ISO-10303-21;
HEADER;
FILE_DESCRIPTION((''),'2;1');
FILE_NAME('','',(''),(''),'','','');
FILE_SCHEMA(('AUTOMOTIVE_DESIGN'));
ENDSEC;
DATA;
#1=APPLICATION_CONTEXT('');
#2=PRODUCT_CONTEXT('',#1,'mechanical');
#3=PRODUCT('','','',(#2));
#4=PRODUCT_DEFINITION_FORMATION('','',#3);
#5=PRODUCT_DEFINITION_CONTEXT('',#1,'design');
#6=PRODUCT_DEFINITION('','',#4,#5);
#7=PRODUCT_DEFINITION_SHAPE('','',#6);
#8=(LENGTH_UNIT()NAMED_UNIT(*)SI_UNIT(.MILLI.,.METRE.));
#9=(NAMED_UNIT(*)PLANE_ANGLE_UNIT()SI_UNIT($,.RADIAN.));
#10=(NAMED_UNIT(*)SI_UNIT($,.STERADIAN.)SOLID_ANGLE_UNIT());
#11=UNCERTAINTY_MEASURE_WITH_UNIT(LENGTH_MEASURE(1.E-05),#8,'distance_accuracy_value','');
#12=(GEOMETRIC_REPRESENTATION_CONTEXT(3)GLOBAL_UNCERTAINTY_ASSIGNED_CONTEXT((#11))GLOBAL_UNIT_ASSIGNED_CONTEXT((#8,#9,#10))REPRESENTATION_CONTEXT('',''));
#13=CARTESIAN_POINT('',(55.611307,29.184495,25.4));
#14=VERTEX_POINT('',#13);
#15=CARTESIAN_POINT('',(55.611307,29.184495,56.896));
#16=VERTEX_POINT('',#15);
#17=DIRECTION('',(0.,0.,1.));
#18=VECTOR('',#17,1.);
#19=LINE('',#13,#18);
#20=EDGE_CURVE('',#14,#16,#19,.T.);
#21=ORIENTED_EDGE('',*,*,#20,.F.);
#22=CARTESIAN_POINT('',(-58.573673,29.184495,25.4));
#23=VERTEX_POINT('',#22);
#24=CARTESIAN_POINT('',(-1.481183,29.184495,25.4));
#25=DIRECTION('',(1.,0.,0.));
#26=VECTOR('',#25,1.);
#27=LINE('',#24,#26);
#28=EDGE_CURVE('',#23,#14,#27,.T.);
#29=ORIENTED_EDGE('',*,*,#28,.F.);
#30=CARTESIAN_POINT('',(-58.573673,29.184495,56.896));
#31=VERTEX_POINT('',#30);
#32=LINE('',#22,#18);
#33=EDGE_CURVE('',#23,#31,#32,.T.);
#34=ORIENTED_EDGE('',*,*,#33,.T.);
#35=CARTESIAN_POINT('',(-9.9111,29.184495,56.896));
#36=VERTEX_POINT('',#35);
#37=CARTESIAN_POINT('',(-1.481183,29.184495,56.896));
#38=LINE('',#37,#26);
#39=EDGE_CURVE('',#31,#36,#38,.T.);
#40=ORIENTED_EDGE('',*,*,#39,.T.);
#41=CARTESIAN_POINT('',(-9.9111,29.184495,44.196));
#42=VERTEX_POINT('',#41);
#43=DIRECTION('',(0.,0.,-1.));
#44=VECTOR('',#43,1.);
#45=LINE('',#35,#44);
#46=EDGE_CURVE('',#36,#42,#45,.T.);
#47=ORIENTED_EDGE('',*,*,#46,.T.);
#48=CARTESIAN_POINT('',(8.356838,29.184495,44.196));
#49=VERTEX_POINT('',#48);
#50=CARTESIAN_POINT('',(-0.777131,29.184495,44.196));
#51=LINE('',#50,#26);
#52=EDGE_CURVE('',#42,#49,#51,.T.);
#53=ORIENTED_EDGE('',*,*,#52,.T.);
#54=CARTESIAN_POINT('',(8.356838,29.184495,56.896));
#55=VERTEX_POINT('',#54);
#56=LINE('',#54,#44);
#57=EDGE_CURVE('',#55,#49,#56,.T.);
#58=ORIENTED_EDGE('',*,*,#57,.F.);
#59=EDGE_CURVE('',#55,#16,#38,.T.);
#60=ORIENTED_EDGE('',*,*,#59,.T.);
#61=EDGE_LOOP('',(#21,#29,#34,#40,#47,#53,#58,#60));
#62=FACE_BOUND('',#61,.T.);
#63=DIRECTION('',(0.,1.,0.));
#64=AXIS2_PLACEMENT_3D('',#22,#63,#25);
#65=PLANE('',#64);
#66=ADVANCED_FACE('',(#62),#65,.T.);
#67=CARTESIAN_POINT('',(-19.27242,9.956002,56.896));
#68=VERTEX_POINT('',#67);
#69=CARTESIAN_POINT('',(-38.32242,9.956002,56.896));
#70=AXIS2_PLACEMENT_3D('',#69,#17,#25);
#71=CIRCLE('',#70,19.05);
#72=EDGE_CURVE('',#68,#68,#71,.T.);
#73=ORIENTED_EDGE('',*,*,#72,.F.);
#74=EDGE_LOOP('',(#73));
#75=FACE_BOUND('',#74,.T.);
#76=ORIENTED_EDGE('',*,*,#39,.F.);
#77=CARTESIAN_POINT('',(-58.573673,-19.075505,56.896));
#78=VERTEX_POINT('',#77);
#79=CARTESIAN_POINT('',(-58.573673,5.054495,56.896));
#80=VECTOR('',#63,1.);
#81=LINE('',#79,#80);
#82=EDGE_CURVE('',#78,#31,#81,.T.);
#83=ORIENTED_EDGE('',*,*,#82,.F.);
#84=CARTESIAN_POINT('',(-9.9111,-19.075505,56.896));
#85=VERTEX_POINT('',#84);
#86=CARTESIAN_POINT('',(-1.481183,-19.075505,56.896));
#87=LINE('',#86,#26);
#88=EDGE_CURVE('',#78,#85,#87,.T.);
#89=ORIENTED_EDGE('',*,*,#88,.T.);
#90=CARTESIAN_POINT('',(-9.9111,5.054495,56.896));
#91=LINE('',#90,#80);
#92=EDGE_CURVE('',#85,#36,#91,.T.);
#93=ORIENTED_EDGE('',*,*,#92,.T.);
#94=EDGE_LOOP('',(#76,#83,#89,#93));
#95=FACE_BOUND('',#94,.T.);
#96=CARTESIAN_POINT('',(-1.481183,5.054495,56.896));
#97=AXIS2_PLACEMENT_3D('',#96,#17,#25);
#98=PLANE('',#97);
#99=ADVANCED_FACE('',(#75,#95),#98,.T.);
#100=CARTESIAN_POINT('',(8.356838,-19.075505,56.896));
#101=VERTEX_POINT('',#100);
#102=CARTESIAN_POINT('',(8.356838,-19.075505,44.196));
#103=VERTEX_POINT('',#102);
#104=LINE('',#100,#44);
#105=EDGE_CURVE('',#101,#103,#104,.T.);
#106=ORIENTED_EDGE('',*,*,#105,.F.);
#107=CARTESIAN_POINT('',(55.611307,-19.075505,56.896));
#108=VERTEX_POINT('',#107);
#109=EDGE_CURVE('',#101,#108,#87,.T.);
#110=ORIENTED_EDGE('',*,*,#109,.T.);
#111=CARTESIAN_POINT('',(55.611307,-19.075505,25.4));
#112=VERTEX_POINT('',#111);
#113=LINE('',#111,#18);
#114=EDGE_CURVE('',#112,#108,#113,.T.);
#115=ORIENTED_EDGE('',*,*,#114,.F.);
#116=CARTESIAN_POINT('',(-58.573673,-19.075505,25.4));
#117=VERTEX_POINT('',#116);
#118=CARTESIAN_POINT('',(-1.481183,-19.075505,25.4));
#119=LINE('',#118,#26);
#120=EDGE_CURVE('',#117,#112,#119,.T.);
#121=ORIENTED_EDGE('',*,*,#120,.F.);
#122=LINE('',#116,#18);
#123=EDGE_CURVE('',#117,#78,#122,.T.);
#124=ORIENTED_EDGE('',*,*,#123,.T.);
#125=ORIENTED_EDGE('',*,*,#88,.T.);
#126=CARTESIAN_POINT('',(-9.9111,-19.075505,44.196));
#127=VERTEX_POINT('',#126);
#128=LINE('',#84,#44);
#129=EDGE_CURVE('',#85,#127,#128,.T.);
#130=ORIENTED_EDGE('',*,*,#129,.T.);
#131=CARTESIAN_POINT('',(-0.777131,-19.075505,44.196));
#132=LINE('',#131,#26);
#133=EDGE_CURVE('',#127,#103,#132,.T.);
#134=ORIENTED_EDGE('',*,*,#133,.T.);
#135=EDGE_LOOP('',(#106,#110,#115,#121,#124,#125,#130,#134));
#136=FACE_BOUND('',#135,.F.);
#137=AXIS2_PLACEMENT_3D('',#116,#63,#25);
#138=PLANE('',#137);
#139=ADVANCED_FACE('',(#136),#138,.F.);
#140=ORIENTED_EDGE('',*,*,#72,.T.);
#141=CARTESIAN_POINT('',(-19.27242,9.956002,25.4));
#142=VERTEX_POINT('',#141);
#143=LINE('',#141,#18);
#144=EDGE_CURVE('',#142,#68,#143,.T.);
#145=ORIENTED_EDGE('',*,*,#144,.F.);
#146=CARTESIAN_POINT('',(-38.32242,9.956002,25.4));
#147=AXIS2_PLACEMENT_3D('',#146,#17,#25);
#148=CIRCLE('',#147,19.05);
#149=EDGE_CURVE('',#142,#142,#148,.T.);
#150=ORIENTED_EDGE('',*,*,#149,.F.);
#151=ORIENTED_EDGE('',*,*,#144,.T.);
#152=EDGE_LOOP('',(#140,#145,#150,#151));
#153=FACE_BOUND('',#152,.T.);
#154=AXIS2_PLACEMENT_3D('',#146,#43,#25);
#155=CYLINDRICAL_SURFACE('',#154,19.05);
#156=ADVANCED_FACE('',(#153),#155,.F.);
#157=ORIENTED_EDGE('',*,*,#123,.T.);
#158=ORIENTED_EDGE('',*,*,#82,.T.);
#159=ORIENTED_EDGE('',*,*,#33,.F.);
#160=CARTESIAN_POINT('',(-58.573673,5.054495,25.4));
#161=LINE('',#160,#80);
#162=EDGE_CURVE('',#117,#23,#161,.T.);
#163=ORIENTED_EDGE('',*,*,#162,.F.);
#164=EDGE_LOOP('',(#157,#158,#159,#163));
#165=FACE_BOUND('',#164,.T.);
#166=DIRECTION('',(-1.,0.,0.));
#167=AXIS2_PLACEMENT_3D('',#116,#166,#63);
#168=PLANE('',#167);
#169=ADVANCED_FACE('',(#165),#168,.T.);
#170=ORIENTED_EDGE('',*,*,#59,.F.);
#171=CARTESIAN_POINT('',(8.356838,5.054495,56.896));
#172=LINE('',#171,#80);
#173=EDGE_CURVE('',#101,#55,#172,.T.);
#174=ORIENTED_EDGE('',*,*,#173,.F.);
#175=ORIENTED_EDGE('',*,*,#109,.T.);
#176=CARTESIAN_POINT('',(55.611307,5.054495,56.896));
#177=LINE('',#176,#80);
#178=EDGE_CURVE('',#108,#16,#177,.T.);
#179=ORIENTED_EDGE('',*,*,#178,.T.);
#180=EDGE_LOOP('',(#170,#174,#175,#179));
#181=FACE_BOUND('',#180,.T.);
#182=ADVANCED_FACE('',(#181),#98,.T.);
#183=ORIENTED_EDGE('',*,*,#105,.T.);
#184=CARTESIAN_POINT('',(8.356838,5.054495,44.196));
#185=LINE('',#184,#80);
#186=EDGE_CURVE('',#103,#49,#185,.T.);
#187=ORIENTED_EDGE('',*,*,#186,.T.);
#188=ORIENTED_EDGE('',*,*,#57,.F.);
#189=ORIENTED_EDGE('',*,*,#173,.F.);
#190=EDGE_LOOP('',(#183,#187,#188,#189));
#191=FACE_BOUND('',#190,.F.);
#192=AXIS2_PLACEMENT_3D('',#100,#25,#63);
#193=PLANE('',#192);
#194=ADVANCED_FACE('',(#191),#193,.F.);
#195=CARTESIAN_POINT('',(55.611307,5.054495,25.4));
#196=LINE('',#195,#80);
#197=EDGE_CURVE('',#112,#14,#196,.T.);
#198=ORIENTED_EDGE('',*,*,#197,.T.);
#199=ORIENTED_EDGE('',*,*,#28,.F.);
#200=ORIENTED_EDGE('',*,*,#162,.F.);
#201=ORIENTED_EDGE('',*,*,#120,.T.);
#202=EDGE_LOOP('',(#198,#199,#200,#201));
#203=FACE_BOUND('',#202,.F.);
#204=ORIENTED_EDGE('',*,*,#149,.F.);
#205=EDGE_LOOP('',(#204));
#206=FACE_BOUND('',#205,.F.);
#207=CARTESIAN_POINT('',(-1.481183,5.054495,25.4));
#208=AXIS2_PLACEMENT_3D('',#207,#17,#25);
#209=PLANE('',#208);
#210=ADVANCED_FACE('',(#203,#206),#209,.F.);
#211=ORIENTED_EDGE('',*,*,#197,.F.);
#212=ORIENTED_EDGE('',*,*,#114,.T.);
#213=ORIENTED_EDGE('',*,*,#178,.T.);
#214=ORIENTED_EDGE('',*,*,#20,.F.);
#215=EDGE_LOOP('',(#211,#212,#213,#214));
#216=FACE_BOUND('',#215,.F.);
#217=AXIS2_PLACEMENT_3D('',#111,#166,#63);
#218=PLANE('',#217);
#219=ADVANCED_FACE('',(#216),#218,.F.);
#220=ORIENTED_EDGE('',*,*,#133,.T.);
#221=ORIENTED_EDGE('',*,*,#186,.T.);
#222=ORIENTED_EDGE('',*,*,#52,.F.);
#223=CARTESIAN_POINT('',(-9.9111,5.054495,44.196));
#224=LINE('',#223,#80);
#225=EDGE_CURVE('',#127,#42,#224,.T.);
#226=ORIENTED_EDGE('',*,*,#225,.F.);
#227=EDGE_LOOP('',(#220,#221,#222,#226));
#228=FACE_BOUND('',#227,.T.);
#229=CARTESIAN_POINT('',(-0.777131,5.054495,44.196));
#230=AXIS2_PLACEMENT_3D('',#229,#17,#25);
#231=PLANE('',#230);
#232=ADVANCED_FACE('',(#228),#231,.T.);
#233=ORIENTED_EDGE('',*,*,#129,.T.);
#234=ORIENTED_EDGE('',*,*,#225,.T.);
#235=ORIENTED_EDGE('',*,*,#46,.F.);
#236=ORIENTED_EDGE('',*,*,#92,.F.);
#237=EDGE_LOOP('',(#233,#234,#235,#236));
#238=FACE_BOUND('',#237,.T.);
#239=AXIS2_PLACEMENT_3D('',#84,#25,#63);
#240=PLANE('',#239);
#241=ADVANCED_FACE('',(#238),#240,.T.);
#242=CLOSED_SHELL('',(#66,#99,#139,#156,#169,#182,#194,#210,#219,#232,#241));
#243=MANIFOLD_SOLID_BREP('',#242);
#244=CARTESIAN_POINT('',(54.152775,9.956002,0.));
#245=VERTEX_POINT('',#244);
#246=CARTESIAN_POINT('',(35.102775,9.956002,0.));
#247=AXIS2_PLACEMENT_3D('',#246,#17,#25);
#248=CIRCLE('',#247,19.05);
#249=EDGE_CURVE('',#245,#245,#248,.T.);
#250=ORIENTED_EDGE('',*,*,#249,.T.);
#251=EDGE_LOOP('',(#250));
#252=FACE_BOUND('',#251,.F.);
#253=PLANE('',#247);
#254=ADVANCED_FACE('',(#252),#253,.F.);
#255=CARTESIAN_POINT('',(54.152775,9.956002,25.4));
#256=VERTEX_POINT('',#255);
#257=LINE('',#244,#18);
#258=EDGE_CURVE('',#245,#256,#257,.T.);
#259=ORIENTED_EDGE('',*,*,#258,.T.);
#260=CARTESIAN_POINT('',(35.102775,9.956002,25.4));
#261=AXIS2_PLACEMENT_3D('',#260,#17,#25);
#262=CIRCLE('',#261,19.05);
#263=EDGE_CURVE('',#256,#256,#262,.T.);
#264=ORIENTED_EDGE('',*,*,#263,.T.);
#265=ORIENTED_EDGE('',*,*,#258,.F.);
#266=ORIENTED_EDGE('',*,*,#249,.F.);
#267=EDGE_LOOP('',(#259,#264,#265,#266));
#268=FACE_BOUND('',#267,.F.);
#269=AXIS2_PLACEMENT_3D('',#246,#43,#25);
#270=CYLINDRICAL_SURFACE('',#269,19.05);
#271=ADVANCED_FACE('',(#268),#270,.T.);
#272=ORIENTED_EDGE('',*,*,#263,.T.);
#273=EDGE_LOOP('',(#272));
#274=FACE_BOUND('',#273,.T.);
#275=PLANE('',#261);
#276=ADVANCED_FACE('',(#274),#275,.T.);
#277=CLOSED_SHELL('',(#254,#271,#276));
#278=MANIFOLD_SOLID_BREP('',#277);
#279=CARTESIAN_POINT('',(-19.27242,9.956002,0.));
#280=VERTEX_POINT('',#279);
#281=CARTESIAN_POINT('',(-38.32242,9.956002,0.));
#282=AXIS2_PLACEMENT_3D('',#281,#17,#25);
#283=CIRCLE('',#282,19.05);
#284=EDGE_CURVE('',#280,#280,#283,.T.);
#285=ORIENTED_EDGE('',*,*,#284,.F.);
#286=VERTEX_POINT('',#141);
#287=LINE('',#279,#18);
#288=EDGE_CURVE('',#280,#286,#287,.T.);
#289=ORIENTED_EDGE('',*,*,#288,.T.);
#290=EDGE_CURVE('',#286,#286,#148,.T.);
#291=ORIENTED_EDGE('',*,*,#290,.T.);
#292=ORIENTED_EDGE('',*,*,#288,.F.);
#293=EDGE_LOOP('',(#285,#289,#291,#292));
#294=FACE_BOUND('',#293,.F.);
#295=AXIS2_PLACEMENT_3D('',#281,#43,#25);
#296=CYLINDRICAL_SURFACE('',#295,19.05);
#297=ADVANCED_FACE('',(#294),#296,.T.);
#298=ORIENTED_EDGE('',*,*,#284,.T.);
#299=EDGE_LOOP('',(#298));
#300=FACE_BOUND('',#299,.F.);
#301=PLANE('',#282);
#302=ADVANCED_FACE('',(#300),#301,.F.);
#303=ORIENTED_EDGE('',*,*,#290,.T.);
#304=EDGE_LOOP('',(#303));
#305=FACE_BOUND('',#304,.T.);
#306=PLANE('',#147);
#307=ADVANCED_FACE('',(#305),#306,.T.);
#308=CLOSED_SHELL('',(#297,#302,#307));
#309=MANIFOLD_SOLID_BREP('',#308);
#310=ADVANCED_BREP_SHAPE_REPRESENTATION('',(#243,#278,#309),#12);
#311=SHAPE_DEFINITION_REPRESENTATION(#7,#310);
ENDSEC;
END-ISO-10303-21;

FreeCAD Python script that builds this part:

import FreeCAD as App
import Part
import Sketcher

V = App.Vector
Q = App.Units.Quantity


def add_polygon(sketch, points):
    """Adds a closed chain of lines whose ends are joined by coincident constraints."""
    first, n = sketch.GeometryCount, len(points)
    for a, b in zip(points, points[1:] + points[:1]):
        sketch.addGeometry(Part.LineSegment(App.Vector(*a, 0), App.Vector(*b, 0)), False)
    for i in range(n):
        sketch.addConstraint(Sketcher.Constraint("Coincident", first + i, 2, first + (i + 1) % n, 1))

doc = App.newDocument("Part")
body = doc.addObject("PartDesign::Body", "Body")
body.AllowCompound = True

# Sketch on XY plane
sketch1 = body.newObject("Sketcher::SketchObject", "Sketch")
sketch1.AttachmentSupport = (doc.getObject("XY_Plane"), [""])
sketch1.MapMode = "FlatFace"
sketch1.addGeometry([
    Part.Circle(V(-38, 10, 0), V(0, 0, 1), 19),
    Part.Circle(V(35, 10, 0), V(0, 0, 1), 19),
], False)
sketch1.addConstraint([
    Sketcher.Constraint("Equal", 0, 1),
    Sketcher.Constraint("Horizontal", 0, 3, 1, 3),
    Sketcher.Constraint("Diameter", 0, Q("1.5 in")),
    Sketcher.Constraint("DistanceX", 0, 3, -1, 1, 38.32242),
    Sketcher.Constraint("DistanceY", -1, 1, 0, 3, 9.956002),
    Sketcher.Constraint("DistanceX", -1, 1, 1, 3, 35.102775),
])
pad1 = body.newObject("PartDesign::Pad", "Pad")
pad1.Profile = sketch1
pad1.Length = Q("1 in")
body2 = doc.addObject("PartDesign::Body", "Body001")

# Sketch on XY plane
sketch2 = body2.newObject("Sketcher::SketchObject", "Sketch001")
sketch2.AttachmentSupport = (doc.getObject("XY_Plane001"), [""])
sketch2.MapMode = "FlatFace"
sketch2.AttachmentOffset = App.Placement(V(0, 0, 1 * 25.4), App.Rotation())
add_polygon(sketch2, [(-59, 29), (-59, -19), (56, -19), (56, 29)])  # lines 0-3
sketch2.addGeometry(Part.Circle(V(-38, 10, 0), V(0, 0, 1), 19), False)  # 4
sketch2.addConstraint([
    Sketcher.Constraint("Vertical", 0),
    Sketcher.Constraint("Horizontal", 1),
    Sketcher.Constraint("Vertical", 2),
    Sketcher.Constraint("Horizontal", 3),
    Sketcher.Constraint("Diameter", 4, Q("1.5 in")),
    Sketcher.Constraint("DistanceY", 0, 2, 0, 1, Q("1.9 in")),
    Sketcher.Constraint("DistanceX", 1, 1, 1, 2, 114.18498),
    Sketcher.Constraint("DistanceX", 4, 3, -1, 1, 38.32242),
    Sketcher.Constraint("DistanceY", -1, 1, 4, 3, 9.956002),
    Sketcher.Constraint("DistanceX", 0, 2, -1, 1, 58.573673),
    Sketcher.Constraint("DistanceY", 0, 2, -1, 1, 19.075505),
])
pad2 = body2.newObject("PartDesign::Pad", "Pad001")
pad2.Profile = sketch2
pad2.Length = Q("1.24 in")

# Sketch on XY plane
sketch3 = body2.newObject("Sketcher::SketchObject", "Sketch002")
sketch3.AttachmentSupport = (doc.getObject("XY_Plane001"), [""])
sketch3.MapMode = "FlatFace"
sketch3.AttachmentOffset = App.Placement(V(0, 0, 2.24 * 25.4), App.Rotation())
add_polygon(sketch3, [(-10, 29), (-10, -19), (8, -19), (8, 29)])  # lines 0-3
sketch3.addConstraint([
    Sketcher.Constraint("Vertical", 0),
    Sketcher.Constraint("Horizontal", 1),
    Sketcher.Constraint("Vertical", 2),
    Sketcher.Constraint("Horizontal", 3),
    Sketcher.Constraint("DistanceY", 0, 2, 0, 1, Q("1.9 in")),
    Sketcher.Constraint("DistanceX", 1, 1, 1, 2, 18.267938),
    Sketcher.Constraint("DistanceX", 0, 2, -1, 1, 9.9111),
    Sketcher.Constraint("DistanceY", 0, 2, -1, 1, 19.075505),
])
pocket1 = body2.newObject("PartDesign::Pocket", "Pocket")
pocket1.Profile = sketch3
pocket1.Length = Q("0.5 in")

doc.recompute()
